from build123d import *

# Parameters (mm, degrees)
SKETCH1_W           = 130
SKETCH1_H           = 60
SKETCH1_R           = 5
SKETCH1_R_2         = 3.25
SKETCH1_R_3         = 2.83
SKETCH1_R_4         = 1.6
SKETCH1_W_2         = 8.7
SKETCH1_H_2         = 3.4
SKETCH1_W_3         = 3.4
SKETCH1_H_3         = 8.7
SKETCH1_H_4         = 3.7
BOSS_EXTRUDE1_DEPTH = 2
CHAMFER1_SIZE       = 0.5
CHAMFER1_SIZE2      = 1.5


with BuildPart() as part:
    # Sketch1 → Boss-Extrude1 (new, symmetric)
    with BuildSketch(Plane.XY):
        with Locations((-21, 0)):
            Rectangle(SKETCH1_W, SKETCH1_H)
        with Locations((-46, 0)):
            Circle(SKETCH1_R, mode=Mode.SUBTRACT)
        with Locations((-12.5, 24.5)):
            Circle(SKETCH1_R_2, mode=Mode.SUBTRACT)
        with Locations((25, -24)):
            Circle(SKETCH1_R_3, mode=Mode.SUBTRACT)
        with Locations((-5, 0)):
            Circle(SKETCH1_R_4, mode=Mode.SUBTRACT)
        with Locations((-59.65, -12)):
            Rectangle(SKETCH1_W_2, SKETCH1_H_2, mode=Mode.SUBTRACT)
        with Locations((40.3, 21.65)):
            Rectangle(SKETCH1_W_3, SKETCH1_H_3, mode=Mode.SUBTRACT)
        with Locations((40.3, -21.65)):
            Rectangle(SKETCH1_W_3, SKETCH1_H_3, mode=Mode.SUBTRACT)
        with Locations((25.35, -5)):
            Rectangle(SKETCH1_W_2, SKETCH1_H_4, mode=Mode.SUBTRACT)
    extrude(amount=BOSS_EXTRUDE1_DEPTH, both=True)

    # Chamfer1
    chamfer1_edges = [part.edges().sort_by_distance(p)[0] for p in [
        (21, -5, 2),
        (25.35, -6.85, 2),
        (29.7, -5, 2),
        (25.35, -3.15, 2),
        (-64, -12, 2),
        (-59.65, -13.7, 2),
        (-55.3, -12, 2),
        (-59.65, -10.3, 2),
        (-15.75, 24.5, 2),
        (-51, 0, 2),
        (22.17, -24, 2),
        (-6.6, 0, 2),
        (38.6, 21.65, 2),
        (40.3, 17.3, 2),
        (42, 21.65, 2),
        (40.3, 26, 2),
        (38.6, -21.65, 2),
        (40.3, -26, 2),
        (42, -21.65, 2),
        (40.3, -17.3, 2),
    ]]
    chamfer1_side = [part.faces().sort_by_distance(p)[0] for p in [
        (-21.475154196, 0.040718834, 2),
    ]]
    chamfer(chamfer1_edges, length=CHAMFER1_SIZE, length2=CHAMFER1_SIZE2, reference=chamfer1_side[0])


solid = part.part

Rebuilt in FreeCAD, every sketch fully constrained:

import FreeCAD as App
import Part
import Sketcher

V = App.Vector


def edges_at(feature, points):
    """Names of the edges that pass closest to the given points."""
    edges = feature.Shape.Edges
    near = lambda p: min(range(len(edges)), key=lambda i: edges[i].distToShape(Part.Vertex(*p))[0])
    return sorted({f"Edge{near(p) + 1}" for p in points})


def add_polygon(sketch, points):
    """Adds a closed chain of lines whose ends are joined by coincident constraints."""
    first, n = sketch.GeometryCount, len(points)
    for a, b in zip(points, points[1:] + points[:1]):
        sketch.addGeometry(Part.LineSegment(App.Vector(*a, 0), App.Vector(*b, 0)), False)
    for i in range(n):
        sketch.addConstraint(Sketcher.Constraint("Coincident", first + i, 2, first + (i + 1) % n, 1))

doc = App.newDocument("Part")
body = doc.addObject("PartDesign::Body", "Body")

# Sketch on XY plane
sketch1 = body.newObject("Sketcher::SketchObject", "Sketch")
sketch1.AttachmentSupport = (doc.getObject("XY_Plane"), [""])
sketch1.MapMode = "FlatFace"
add_polygon(sketch1, [(-86, 30), (-86, -30), (44, -30), (44, 30)])  # lines 0-3
add_polygon(sketch1, [(-55.3, -13.7), (-64, -13.7), (-64, -10.3), (-55.3, -10.3)])  # lines 4-7
sketch1.addGeometry(Part.Circle(V(-46, 0, 0), V(0, 0, 1), 5), False)  # 8
sketch1.addGeometry(Part.Circle(V(25, -24, 0), V(0, 0, 1), 2.83), False)  # 9
add_polygon(sketch1, [(42, -26), (38.6, -26), (38.6, -17.3), (42, -17.3)])  # lines 10-13
sketch1.addGeometry(Part.Circle(V(-5, 0, 0), V(0, 0, 1), 1.6), False)  # 14
add_polygon(sketch1, [(29.7, -6.85), (21, -6.85), (21, -3.15), (29.7, -3.15)])  # lines 15-18
sketch1.addGeometry(Part.Circle(V(-12.5, 24.5, 0), V(0, 0, 1), 3.25), False)  # 19
add_polygon(sketch1, [(42, 17.3), (38.6, 17.3), (38.6, 26), (42, 26)])  # lines 20-23
sketch1.addConstraint([
    Sketcher.Constraint("Vertical", 0),
    Sketcher.Constraint("Horizontal", 1),
    Sketcher.Constraint("Vertical", 2),
    Sketcher.Constraint("Horizontal", 3),
    Sketcher.Constraint("Horizontal", 4),
    Sketcher.Constraint("Vertical", 5),
    Sketcher.Constraint("Horizontal", 6),
    Sketcher.Constraint("Vertical", 7),
    Sketcher.Constraint("Horizontal", 10),
    Sketcher.Constraint("Vertical", 11),
    Sketcher.Constraint("Horizontal", 12),
    Sketcher.Constraint("Vertical", 13),
    Sketcher.Constraint("Horizontal", 15),
    Sketcher.Constraint("Vertical", 16),
    Sketcher.Constraint("Horizontal", 17),
    Sketcher.Constraint("Vertical", 18),
    Sketcher.Constraint("Horizontal", 20),
    Sketcher.Constraint("Vertical", 21),
    Sketcher.Constraint("Horizontal", 22),
    Sketcher.Constraint("Vertical", 23),
    Sketcher.Constraint("Symmetric", 11, 2, 20, 2, -1),
    Sketcher.Constraint("Symmetric", 13, 2, 22, 2, -1),
    Sketcher.Constraint("PointOnObject", 8, 3, -1),
    Sketcher.Constraint("PointOnObject", 14, 3, -1),
    Sketcher.Constraint("Equal", 6, 15),
    Sketcher.Constraint("Equal", 22, 5),
    Sketcher.Constraint("Equal", 17, 11),
    Sketcher.Constraint("Diameter", 8, 10.0),
    Sketcher.Constraint("Diameter", 14, 3.2),
    Sketcher.Constraint("Diameter", 19, 6.5),
    Sketcher.Constraint("Diameter", 9, 5.66),
    Sketcher.Constraint("DistanceX", 1, 1, 1, 2, 130.0),
    Sketcher.Constraint("DistanceY", 0, 2, 0, 1, 60.0),
    Sketcher.Constraint("DistanceX", 4, 2, 4, 1, 8.7),
    Sketcher.Constraint("DistanceX", 10, 2, 10, 1, 3.4),
    Sketcher.Constraint("DistanceY", 16, 1, 16, 2, 3.7),
    Sketcher.Constraint("DistanceX", 8, 3, -1, 1, 46.0),
    Sketcher.Constraint("DistanceX", -1, 1, 9, 3, 25.0),
    Sketcher.Constraint("DistanceY", 9, 3, -1, 1, 24.0),
    Sketcher.Constraint("DistanceX", 14, 3, -1, 1, 5.0),
    Sketcher.Constraint("DistanceX", 0, 2, -1, 1, 86.0),
    Sketcher.Constraint("DistanceY", 0, 2, -1, 1, 30.0),
    Sketcher.Constraint("DistanceX", 4, 2, -1, 1, 64.0),
    Sketcher.Constraint("DistanceY", 10, 2, -1, 1, 26.0),
    Sketcher.Constraint("DistanceX", -1, 1, 12, 2, 42.0),
    Sketcher.Constraint("DistanceX", -1, 1, 15, 2, 21.0),
    Sketcher.Constraint("DistanceX", 19, 3, -1, 1, 12.5),
    Sketcher.Constraint("DistanceY", -1, 1, 19, 3, 24.5),
    Sketcher.Constraint("DistanceY", 4, 2, -1, 1, 13.7),
    Sketcher.Constraint("DistanceY", 15, 2, -1, 1, 6.85),
])
pad1 = body.newObject("PartDesign::Pad", "Pad")
pad1.Profile = sketch1
pad1.Length = 4
pad1.Midplane = True
doc.recompute()

chamfer = body.newObject("PartDesign::Chamfer", "Chamfer")
chamfer.Base = (pad1, edges_at(pad1, [
    (21, -5, 2),
    (25.35, -6.85, 2),
    (29.7, -5, 2),
    (25.35, -3.15, 2),
    (-64, -12, 2),
    (-59.65, -13.7, 2),
    (-55.3, -12, 2),
    (-59.65, -10.3, 2),
    (-15.75, 24.5, 2),
    (-51, 0, 2),
    (22.17, -24, 2),
    (-6.6, 0, 2),
    (38.6, 21.65, 2),
    (40.3, 17.3, 2),
    (42, 21.65, 2),
    (40.3, 26, 2),
    (38.6, -21.65, 2),
    (40.3, -26, 2),
    (42, -21.65, 2),
    (40.3, -17.3, 2),
]))
chamfer.ChamferType = "Two distances"
chamfer.Size = 0.5
chamfer.Size2 = 1.5
chamfer.FlipDirection = True

doc.recompute()
